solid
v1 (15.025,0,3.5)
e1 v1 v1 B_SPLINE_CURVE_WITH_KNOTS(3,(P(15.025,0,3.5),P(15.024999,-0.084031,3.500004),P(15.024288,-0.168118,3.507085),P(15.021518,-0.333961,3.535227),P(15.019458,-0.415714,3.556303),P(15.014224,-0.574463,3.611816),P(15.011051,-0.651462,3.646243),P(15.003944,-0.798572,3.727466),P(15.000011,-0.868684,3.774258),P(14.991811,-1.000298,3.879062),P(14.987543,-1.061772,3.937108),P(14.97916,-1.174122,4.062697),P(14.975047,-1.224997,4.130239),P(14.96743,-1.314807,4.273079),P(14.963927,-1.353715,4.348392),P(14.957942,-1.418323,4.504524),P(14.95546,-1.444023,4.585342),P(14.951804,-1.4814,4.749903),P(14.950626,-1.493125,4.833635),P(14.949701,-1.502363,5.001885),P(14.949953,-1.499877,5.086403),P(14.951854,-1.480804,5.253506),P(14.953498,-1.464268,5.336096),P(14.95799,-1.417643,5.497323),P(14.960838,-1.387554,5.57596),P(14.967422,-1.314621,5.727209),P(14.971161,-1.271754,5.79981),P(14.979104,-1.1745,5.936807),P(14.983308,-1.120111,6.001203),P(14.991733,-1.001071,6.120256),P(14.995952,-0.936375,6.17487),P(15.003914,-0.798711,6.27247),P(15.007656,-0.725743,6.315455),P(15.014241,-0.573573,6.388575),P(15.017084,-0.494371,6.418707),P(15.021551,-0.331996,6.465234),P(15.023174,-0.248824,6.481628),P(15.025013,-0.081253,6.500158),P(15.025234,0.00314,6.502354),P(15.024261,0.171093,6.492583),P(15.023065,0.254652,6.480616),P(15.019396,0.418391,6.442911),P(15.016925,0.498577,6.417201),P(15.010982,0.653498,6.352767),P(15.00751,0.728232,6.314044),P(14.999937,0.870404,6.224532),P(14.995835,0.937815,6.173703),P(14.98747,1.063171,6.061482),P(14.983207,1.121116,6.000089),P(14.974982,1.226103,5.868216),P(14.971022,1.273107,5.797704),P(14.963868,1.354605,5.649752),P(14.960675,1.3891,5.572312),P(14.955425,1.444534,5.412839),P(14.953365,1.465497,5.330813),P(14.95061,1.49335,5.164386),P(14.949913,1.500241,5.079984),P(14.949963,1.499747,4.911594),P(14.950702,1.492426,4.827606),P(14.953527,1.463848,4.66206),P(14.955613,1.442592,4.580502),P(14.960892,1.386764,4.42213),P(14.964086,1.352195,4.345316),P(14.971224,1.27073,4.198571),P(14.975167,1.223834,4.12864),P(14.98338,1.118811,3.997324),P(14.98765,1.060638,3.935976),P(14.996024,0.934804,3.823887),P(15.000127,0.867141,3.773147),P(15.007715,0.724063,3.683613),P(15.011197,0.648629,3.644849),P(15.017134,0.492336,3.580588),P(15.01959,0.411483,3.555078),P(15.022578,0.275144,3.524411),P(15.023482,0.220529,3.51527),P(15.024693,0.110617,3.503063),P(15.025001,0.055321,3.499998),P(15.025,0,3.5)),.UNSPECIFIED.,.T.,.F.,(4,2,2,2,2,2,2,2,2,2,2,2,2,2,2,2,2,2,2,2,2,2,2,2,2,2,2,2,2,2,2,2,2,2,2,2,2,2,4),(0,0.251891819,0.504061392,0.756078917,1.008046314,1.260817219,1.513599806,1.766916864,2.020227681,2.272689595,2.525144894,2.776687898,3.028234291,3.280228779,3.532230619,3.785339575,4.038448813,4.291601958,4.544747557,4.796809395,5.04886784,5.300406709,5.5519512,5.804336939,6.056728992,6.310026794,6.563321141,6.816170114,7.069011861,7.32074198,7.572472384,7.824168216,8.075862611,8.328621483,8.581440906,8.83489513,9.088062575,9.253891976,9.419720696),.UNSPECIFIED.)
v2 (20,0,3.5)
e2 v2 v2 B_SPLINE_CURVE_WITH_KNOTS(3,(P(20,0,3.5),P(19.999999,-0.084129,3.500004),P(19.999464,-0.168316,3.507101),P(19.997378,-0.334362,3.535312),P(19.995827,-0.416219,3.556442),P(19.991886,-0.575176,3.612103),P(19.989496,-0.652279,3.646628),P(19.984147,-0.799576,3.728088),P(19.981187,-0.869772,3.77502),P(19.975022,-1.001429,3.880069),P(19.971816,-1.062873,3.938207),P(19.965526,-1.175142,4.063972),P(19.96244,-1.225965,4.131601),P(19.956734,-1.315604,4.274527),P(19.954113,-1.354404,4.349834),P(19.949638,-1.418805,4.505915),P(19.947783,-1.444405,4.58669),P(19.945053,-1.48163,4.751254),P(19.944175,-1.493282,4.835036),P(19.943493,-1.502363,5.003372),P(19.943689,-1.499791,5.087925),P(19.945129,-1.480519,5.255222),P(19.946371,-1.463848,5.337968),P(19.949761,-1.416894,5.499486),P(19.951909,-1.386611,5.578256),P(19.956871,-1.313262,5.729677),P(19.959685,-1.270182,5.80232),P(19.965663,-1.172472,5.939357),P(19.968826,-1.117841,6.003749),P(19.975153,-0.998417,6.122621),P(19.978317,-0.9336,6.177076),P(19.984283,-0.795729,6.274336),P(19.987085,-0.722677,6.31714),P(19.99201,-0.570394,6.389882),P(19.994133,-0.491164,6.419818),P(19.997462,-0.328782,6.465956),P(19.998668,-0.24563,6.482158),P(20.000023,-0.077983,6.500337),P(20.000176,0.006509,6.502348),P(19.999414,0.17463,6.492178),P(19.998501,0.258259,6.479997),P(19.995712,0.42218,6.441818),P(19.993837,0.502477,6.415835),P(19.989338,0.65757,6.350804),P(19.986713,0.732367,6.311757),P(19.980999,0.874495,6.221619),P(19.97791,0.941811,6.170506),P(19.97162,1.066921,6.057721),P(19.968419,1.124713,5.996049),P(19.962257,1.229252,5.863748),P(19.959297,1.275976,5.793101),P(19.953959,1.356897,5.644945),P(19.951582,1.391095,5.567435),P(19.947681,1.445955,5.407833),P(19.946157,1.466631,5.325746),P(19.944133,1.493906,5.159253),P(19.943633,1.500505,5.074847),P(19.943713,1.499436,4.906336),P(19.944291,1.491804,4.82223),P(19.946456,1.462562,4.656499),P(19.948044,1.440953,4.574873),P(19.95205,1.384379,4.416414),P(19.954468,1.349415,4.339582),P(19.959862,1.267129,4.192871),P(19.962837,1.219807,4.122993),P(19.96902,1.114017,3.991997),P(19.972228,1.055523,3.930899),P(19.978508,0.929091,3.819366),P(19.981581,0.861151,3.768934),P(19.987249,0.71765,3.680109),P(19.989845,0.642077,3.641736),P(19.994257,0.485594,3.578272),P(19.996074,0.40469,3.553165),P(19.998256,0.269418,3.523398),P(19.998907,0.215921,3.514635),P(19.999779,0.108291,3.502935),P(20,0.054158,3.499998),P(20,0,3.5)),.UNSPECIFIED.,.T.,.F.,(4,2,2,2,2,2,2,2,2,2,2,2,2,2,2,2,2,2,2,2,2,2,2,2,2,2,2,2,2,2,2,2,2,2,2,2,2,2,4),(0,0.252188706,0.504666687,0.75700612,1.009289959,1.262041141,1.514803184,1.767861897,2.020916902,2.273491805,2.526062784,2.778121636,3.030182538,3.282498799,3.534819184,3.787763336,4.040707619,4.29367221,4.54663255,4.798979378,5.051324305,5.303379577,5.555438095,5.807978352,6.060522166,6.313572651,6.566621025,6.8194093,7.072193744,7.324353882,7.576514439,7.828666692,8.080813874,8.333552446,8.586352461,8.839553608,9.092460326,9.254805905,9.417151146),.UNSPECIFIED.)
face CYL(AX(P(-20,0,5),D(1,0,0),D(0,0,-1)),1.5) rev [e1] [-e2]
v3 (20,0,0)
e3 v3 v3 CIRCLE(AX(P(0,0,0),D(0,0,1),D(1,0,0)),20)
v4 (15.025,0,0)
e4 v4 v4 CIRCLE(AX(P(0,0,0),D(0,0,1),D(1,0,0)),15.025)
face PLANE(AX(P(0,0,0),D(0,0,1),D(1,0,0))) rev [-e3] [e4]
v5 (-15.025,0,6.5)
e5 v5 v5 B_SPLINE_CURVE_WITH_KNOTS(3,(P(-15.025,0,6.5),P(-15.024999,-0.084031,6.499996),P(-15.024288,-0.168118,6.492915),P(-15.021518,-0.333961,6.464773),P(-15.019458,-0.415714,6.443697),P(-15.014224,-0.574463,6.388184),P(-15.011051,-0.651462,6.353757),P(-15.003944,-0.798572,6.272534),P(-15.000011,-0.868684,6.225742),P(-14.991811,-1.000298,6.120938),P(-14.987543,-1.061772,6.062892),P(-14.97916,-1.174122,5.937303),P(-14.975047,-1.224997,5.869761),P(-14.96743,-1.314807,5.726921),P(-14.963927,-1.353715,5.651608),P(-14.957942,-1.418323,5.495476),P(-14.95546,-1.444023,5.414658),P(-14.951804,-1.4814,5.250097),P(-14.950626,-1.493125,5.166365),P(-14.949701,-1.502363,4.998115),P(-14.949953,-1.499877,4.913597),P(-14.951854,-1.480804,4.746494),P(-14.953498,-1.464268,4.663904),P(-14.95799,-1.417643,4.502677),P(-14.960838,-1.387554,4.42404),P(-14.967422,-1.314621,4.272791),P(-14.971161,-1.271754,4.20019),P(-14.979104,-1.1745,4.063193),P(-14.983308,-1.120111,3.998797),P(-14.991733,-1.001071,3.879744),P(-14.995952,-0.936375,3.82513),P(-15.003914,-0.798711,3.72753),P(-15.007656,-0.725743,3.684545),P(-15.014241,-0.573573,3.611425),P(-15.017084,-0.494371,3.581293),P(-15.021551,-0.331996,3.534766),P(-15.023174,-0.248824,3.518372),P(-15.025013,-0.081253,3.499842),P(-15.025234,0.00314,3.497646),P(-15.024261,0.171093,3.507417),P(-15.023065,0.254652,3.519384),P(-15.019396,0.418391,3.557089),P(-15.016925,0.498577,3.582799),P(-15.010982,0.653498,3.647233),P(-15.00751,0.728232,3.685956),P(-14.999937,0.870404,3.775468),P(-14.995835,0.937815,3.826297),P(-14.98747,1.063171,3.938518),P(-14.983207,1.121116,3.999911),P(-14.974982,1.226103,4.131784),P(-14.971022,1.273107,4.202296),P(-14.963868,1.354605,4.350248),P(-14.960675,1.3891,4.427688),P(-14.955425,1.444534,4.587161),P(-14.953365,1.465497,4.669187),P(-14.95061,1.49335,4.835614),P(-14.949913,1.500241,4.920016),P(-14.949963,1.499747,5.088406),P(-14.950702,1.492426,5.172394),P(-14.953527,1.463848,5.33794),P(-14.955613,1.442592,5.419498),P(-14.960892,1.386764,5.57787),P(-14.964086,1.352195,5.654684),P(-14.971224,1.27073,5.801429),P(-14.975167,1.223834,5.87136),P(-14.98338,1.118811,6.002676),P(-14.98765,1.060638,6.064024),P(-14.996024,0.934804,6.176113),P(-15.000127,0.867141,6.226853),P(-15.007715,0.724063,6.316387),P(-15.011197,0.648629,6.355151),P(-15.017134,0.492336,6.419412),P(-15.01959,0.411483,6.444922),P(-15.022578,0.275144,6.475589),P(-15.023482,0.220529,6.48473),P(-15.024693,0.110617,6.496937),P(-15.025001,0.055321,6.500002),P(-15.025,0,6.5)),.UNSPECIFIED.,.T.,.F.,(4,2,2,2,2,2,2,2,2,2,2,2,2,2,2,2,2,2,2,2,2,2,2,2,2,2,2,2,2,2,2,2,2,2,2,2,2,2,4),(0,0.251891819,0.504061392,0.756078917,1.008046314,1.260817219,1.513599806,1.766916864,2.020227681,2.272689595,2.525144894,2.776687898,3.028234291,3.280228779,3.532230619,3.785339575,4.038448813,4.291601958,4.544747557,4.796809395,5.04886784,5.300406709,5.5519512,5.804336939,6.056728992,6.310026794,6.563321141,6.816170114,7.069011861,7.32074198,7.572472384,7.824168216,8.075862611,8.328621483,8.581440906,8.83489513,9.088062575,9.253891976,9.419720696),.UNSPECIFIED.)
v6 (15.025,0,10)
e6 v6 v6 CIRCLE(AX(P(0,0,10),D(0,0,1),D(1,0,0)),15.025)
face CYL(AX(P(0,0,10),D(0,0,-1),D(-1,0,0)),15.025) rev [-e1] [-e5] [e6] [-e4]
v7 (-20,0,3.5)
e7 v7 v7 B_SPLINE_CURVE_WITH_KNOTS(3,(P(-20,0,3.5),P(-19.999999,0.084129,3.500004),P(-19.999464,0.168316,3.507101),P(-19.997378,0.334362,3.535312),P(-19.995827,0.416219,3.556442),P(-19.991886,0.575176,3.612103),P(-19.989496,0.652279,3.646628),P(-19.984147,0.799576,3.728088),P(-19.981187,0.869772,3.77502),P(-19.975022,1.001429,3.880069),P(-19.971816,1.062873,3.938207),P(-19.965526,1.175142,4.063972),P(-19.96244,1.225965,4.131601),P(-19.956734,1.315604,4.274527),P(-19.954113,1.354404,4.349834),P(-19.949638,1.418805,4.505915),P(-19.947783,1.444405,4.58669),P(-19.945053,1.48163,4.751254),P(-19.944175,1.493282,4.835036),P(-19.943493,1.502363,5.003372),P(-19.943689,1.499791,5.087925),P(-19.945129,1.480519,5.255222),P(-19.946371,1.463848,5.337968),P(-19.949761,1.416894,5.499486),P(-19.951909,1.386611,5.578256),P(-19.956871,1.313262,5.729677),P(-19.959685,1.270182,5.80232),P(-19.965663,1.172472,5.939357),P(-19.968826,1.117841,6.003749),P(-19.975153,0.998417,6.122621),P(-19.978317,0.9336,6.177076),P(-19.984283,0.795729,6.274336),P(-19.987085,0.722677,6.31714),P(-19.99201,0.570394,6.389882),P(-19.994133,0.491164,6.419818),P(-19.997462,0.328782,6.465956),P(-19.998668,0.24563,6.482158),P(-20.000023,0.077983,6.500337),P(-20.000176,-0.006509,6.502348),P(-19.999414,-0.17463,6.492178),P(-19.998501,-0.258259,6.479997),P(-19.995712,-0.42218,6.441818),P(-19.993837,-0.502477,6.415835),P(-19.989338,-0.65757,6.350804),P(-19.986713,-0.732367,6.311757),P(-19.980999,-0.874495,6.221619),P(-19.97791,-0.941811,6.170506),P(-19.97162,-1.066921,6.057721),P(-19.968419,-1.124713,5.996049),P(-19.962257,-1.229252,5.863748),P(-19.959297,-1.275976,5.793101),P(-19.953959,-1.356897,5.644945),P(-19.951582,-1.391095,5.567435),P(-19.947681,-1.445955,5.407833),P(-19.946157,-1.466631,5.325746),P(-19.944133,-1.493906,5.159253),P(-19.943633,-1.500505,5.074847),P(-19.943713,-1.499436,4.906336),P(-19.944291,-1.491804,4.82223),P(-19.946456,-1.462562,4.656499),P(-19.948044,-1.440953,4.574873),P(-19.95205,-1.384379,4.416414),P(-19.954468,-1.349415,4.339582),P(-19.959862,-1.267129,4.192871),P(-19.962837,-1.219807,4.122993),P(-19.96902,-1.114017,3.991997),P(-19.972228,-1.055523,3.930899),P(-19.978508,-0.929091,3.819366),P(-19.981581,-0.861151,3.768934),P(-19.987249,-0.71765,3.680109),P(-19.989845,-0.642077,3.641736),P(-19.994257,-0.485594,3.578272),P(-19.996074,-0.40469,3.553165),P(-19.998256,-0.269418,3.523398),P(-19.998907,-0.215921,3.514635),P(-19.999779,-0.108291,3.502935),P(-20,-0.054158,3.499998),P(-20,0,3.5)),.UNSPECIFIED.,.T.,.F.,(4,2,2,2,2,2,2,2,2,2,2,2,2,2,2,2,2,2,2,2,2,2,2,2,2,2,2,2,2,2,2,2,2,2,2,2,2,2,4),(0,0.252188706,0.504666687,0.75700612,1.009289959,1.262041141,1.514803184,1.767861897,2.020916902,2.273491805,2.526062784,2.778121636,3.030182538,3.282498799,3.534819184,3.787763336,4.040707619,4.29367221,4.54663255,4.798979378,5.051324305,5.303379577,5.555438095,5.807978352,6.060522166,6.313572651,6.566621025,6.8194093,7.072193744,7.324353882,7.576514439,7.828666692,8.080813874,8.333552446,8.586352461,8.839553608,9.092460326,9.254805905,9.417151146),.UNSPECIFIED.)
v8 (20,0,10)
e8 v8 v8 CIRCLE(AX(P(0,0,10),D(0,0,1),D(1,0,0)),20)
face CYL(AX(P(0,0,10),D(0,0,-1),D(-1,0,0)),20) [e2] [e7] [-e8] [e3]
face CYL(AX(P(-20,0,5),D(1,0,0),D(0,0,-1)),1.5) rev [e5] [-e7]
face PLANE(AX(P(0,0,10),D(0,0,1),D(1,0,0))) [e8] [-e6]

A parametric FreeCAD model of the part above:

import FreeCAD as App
import Part
import Sketcher

doc = App.newDocument("Part")
body = doc.addObject("PartDesign::Body", "Body")

# Sketch on XY plane
sketch1 = doc.addObject("Sketcher::SketchObject", "Sketch")
body.addObject(sketch1)
sketch1.AttachmentSupport = (doc.XY_Plane, [""])
sketch1.MapMode = "FlatFace"
sketch1.addGeometry([
    Part.Circle(App.Vector(0, 0, 0), App.Vector(0, 0, 1), 20),
    Part.Circle(App.Vector(0, 0, 0), App.Vector(0, 0, 1), 15.025),
], False)
sketch1.addConstraint([
    Sketcher.Constraint("Coincident", 0, 3, -1, 1),
    Sketcher.Constraint("Coincident", 1, 3, -1, 1),
    Sketcher.Constraint("Diameter", 0, 40.0),
    Sketcher.Constraint("Diameter", 1, 30.05),
])
pad1 = doc.addObject("PartDesign::Pad", "Pad")
body.addObject(pad1)
pad1.Profile = sketch1
pad1.Length = 10

# Sketch on YZ plane
sketch2 = doc.addObject("Sketcher::SketchObject", "Sketch001")
body.addObject(sketch2)
sketch2.AttachmentSupport = (doc.YZ_Plane, [""])
sketch2.MapMode = "FlatFace"
sketch2.addGeometry(Part.Circle(App.Vector(0, 5, 0), App.Vector(0, 0, 1), 1.5), False)
sketch2.addConstraint([
    Sketcher.Constraint("PointOnObject", 0, 3, -2),
    Sketcher.Constraint("Diameter", 0, 3.0),
    Sketcher.Constraint("DistanceY", -1, 1, 0, 3, 5.0),
])
pocket1 = doc.addObject("PartDesign::Pocket", "Pocket")
body.addObject(pocket1)
pocket1.Profile = sketch2
pocket1.Type = "ThroughAll"
pocket1.Midplane = True

doc.recompute()
